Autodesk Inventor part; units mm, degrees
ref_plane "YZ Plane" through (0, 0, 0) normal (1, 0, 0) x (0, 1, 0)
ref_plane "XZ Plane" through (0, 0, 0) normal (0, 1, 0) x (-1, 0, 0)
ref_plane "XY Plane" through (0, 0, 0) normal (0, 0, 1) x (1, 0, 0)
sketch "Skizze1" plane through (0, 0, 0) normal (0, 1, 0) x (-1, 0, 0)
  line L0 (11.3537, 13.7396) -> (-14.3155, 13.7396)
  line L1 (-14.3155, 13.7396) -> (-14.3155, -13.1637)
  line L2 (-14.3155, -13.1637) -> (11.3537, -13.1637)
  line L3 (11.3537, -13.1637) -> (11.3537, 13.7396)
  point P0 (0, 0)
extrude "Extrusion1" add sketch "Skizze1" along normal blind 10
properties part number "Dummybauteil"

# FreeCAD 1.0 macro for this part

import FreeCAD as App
import Part
import Sketcher

V = App.Vector

doc = App.newDocument("Part")
body = doc.addObject("PartDesign::Body", "Body")

# Sketch on XZ plane
sketch1 = doc.addObject("Sketcher::SketchObject", "Sketch")
body.addObject(sketch1)
sketch1.AttachmentSupport = (doc.XZ_Plane, [""])
sketch1.MapMode = "FlatFace"
sketch1.addGeometry([
    Part.LineSegment(V(-11.3537, -13.1637, 0), V(-11.3537, 13.7396, 0)),
    Part.LineSegment(V(-11.3537, 13.7396, 0), V(14.3155, 13.7396, 0)),
    Part.LineSegment(V(14.3155, 13.7396, 0), V(14.3155, -13.1637, 0)),
    Part.LineSegment(V(14.3155, -13.1637, 0), V(-11.3537, -13.1637, 0)),
], False)
sketch1.addConstraint([
    Sketcher.Constraint("Coincident", 0, 2, 1, 1),
    Sketcher.Constraint("Coincident", 1, 2, 2, 1),
    Sketcher.Constraint("Coincident", 2, 2, 3, 1),
    Sketcher.Constraint("Coincident", 3, 2, 0, 1),
    Sketcher.Constraint("Vertical", 0),
    Sketcher.Constraint("Horizontal", 1),
    Sketcher.Constraint("Vertical", 2),
    Sketcher.Constraint("Horizontal", 3),
    Sketcher.Constraint("DistanceX", 1, 1, 1, 2, 25.6692),
    Sketcher.Constraint("DistanceY", 0, 1, 0, 2, 26.9033),
    Sketcher.Constraint("DistanceX", 0, 2, -1, 1, 11.3537),
    Sketcher.Constraint("DistanceY", -1, 1, 0, 2, 13.7396),
])
pad1 = doc.addObject("PartDesign::Pad", "Pad")
body.addObject(pad1)
pad1.Profile = sketch1
pad1.Length = 10
pad1.Reversed = True

doc.recompute()
